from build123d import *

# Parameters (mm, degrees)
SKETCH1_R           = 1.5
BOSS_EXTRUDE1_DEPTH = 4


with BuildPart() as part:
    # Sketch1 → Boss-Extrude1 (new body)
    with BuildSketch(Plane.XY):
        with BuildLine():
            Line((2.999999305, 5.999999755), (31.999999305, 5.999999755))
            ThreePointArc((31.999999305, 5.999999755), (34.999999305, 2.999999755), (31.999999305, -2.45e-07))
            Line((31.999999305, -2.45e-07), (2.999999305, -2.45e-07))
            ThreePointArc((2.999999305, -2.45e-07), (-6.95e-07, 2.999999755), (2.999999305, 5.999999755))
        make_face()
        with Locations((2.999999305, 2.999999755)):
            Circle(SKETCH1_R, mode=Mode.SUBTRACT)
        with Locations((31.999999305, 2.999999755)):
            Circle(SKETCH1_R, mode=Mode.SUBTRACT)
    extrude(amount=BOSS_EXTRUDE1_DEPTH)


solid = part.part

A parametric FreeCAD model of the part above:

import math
import FreeCAD as App
import Part
import Sketcher

V = App.Vector

doc = App.newDocument("Part")
body = doc.addObject("PartDesign::Body", "Body")

# Sketch on XY plane
sketch1 = body.newObject("Sketcher::SketchObject", "Sketch")
sketch1.AttachmentSupport = (doc.getObject("XY_Plane"), [""])
sketch1.MapMode = "FlatFace"
sketch1.addGeometry([
    Part.LineSegment(V(32, 6, 0), V(3, 6, 0)),  # 0
    Part.ArcOfCircle(Part.Circle(V(3, 3, 0), V(0, 0, 1), 3), math.radians(90), math.radians(270)),  # 1
    Part.LineSegment(V(3, 0, 0), V(32, 0, 0)),  # 2
    Part.ArcOfCircle(Part.Circle(V(32, 3, 0), V(0, 0, 1), 3), math.radians(-90), math.radians(90)),  # 3
    Part.Circle(V(32, 3, 0), V(0, 0, 1), 1.5),  # 4
    Part.Circle(V(3, 3, 0), V(0, 0, 1), 1.5),  # 5
], False)
sketch1.addConstraint([
    Sketcher.Constraint("Tangent", 0, 2, 1, 1),
    Sketcher.Constraint("Tangent", 1, 2, 2, 1),
    Sketcher.Constraint("Tangent", 2, 2, 3, 1),
    Sketcher.Constraint("Tangent", 3, 2, 0, 1),
    Sketcher.Constraint("Horizontal", 0),
    Sketcher.Constraint("Horizontal", 2),
    Sketcher.Constraint("Coincident", 4, 3, 3, 3),
    Sketcher.Constraint("Coincident", 5, 3, 1, 3),
    Sketcher.Constraint("Equal", 4, 5),
    Sketcher.Constraint("PointOnObject", 1, 2, -1),
    Sketcher.Constraint("Diameter", 4, 3.0),
    Sketcher.Constraint("Radius", 1, 3.0),
    Sketcher.Constraint("DistanceX", 0, 2, 0, 1, 29.0),
    Sketcher.Constraint("DistanceX", -1, 1, 1, 3, 2.999999),
])
pad1 = body.newObject("PartDesign::Pad", "Pad")
pad1.Profile = sketch1
pad1.Length = 4

doc.recompute()
